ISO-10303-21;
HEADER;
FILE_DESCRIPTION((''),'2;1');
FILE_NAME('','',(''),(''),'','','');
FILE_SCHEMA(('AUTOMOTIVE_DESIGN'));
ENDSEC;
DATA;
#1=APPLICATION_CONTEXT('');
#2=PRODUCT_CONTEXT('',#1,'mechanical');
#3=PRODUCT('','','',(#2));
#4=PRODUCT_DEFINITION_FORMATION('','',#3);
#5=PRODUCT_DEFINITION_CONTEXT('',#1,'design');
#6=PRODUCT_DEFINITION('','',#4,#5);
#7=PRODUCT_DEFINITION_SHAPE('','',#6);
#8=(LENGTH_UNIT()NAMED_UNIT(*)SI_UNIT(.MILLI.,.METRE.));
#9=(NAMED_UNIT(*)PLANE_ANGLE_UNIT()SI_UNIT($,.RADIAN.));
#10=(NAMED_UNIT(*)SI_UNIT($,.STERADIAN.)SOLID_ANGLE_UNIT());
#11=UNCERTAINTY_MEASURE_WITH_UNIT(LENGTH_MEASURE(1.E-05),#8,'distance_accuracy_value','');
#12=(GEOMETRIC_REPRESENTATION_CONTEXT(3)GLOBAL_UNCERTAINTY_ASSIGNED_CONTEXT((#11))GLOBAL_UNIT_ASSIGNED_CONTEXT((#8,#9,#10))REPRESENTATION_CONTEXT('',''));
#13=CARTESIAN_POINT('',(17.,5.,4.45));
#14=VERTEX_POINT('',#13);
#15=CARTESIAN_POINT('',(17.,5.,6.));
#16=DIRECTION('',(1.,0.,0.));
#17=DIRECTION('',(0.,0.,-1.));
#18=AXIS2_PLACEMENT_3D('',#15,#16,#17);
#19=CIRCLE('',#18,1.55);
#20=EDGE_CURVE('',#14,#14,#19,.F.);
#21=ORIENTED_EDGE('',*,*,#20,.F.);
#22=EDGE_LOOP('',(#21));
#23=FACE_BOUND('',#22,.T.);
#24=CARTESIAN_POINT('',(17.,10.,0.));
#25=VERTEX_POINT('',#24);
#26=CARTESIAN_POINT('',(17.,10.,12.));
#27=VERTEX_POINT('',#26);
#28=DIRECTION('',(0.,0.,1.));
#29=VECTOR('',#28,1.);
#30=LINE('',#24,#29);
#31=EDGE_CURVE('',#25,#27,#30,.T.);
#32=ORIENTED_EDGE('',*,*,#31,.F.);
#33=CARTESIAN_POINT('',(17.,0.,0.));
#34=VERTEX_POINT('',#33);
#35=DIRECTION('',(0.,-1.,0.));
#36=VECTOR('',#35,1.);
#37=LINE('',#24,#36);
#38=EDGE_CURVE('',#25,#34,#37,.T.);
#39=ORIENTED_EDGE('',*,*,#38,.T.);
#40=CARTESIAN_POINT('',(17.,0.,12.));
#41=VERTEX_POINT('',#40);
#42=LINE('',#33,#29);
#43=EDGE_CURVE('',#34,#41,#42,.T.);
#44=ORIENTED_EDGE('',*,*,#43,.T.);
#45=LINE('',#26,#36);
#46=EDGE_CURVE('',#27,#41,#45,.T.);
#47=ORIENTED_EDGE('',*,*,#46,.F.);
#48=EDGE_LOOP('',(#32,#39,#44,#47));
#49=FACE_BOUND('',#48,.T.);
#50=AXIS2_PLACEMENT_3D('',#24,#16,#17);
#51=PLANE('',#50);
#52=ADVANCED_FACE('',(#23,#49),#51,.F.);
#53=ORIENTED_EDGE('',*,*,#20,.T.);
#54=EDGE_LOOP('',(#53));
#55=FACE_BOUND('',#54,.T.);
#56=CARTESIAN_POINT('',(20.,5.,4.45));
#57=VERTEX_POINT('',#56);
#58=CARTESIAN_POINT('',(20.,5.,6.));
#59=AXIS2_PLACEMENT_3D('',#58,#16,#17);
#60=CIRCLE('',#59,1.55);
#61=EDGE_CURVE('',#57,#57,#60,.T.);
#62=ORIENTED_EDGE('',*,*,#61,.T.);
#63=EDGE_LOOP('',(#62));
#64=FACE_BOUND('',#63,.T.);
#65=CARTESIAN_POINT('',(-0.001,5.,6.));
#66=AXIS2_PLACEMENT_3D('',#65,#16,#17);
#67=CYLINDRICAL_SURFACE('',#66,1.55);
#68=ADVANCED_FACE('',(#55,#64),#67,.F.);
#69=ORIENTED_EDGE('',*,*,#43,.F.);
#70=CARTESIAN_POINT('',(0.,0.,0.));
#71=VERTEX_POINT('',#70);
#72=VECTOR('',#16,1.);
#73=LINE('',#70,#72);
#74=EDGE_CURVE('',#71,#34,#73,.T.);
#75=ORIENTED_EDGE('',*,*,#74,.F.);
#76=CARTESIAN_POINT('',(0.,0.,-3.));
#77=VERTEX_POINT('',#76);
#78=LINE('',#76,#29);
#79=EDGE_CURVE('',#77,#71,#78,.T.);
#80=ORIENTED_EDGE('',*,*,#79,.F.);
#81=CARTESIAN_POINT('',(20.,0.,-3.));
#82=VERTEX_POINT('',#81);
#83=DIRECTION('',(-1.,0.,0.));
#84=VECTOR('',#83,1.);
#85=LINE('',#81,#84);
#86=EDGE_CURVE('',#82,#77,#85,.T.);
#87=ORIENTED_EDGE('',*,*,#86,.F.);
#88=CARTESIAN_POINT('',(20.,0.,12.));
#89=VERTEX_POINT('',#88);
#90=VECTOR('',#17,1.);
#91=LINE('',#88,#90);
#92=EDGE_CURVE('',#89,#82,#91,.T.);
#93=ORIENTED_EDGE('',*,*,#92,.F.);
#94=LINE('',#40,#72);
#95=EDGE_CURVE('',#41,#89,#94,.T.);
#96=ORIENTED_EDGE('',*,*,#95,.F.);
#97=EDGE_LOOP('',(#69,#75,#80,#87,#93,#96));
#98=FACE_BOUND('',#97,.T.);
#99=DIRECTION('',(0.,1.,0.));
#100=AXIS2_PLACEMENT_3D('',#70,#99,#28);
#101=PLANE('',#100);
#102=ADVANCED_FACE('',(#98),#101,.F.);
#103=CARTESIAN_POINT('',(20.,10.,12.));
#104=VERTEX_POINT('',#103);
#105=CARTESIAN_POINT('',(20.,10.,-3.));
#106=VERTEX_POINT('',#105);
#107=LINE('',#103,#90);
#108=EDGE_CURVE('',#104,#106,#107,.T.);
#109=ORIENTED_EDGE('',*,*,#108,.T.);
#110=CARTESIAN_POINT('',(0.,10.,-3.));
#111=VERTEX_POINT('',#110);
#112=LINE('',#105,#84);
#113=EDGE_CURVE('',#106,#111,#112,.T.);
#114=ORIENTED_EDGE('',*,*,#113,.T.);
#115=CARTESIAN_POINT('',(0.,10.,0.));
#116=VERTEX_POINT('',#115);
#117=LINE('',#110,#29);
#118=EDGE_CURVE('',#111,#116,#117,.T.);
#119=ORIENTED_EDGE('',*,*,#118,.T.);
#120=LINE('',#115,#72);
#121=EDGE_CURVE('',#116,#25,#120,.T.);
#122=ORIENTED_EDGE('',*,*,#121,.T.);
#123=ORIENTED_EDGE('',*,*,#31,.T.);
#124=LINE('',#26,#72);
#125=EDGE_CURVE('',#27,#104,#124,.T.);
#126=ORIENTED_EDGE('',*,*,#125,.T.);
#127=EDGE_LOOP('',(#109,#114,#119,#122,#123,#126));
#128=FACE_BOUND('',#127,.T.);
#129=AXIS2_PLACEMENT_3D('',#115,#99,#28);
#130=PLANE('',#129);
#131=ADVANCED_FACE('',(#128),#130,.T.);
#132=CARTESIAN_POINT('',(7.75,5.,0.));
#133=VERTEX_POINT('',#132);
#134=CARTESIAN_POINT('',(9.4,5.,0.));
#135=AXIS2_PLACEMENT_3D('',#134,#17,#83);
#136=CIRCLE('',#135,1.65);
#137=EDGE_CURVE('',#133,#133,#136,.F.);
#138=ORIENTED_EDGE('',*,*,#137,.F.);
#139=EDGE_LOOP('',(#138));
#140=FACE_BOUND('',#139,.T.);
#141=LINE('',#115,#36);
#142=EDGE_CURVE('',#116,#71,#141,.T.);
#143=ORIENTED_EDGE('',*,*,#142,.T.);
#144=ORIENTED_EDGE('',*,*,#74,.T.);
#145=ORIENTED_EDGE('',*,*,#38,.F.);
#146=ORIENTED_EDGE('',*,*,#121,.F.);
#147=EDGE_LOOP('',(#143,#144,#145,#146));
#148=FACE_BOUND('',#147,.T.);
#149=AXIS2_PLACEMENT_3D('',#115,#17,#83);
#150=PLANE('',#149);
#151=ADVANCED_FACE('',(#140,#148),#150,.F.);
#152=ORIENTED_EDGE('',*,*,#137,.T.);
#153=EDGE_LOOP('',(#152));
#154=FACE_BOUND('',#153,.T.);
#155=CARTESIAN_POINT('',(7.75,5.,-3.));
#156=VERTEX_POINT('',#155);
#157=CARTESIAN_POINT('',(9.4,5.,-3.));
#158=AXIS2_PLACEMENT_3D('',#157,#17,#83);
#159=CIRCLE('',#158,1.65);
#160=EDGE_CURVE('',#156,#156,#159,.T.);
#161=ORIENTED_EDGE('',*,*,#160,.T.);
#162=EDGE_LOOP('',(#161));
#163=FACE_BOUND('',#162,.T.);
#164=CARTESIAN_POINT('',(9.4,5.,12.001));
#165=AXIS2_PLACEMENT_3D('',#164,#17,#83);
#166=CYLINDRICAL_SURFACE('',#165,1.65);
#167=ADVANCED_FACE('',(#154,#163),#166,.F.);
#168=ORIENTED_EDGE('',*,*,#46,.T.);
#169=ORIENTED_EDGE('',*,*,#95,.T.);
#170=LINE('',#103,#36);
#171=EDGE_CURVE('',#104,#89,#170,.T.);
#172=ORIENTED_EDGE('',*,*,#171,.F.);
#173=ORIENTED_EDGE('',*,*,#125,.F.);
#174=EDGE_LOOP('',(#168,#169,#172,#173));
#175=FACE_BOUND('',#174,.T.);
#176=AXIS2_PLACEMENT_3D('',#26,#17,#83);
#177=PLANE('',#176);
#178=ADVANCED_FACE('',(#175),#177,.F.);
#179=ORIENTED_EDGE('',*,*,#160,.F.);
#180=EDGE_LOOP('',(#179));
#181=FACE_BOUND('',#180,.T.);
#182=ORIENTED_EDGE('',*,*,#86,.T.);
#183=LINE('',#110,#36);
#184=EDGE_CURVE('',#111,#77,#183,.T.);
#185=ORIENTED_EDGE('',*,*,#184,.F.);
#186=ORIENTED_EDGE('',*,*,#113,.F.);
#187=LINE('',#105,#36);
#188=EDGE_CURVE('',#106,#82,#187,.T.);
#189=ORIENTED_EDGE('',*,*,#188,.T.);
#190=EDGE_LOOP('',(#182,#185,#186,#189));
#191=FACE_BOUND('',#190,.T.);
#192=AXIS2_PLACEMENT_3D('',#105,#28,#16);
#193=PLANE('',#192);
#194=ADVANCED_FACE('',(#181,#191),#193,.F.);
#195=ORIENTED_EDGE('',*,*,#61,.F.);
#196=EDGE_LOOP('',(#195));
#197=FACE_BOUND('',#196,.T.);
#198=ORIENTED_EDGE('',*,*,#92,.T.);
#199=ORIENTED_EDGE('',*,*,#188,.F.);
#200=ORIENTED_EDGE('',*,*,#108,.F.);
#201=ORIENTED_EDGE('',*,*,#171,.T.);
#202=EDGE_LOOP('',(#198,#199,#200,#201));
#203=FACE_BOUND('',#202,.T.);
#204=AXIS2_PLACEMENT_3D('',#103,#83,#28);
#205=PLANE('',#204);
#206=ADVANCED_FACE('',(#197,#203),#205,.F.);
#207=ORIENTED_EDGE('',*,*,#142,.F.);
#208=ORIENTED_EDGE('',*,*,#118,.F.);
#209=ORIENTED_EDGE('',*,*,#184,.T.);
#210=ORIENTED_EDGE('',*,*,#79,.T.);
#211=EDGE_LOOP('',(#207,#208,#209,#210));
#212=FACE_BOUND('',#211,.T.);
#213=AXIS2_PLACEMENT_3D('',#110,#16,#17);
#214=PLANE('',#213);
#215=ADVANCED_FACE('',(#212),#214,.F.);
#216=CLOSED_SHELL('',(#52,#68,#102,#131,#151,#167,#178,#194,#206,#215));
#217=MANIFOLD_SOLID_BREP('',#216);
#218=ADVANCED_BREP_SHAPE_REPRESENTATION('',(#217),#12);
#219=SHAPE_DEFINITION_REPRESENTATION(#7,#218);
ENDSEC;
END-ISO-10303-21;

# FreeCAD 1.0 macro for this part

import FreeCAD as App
import Part
import Sketcher

V = App.Vector

doc = App.newDocument("Part")
params = doc.addObject("Spreadsheet::Sheet", "Params")
for row, (alias, value) in enumerate([
    ("sketch1_width", "17 mm"),
    ("sketch1_width2", "3 mm"),
    ("sketch1_height", "12 mm"),
    ("pad1_length", "10 mm"),
    ("sketch2_diameter", "3.1 mm"),
    ("sketch3_diameter", "3.3 mm"),
], start=1):
    params.set(f"A{row}", alias)
    params.set(f"B{row}", "=" + value)
    params.setAlias(f"B{row}", alias)

body = doc.addObject("PartDesign::Body", "Body")

# Sketch on XZ plane
sketch1 = body.newObject("Sketcher::SketchObject", "Sketch")
sketch1.AttachmentSupport = (doc.getObject("XZ_Plane"), [""])
sketch1.MapMode = "FlatFace"
sketch1.addGeometry([
    Part.LineSegment(V(0, 0, 0), V(17, 0, 0)),  # 0
    Part.LineSegment(V(17, 0, 0), V(17, 12, 0)),  # 1
    Part.LineSegment(V(17, 12, 0), V(20, 12, 0)),  # 2
    Part.LineSegment(V(20, 12, 0), V(20, -3, 0)),  # 3
    Part.LineSegment(V(20, -3, 0), V(0, -3, 0)),  # 4
    Part.LineSegment(V(0, -3, 0), V(0, 0, 0)),  # 5
], False)
sketch1.addConstraint([
    Sketcher.Constraint("Coincident", 0, 2, 1, 1),
    Sketcher.Constraint("Coincident", 1, 2, 2, 1),
    Sketcher.Constraint("Coincident", 2, 2, 3, 1),
    Sketcher.Constraint("Coincident", 3, 2, 4, 1),
    Sketcher.Constraint("Coincident", 4, 2, 5, 1),
    Sketcher.Constraint("Coincident", 5, 2, 0, 1),
    Sketcher.Constraint("Horizontal", 0),
    Sketcher.Constraint("Vertical", 1),
    Sketcher.Constraint("Horizontal", 2),
    Sketcher.Constraint("Vertical", 3),
    Sketcher.Constraint("Horizontal", 4),
    Sketcher.Constraint("Vertical", 5),
    Sketcher.Constraint("Coincident", 5, 2, -1, 1),
    Sketcher.Constraint("Equal", 2, 5),
    Sketcher.Constraint("DistanceX", 0, 1, 0, 2, 17.0),
    Sketcher.Constraint("DistanceX", 2, 1, 2, 2, 3.0),
    Sketcher.Constraint("DistanceY", 1, 1, 1, 2, 12.0),
])
sketch1.setExpression("Constraints[14]", "Params.sketch1_width")
sketch1.setExpression("Constraints[15]", "Params.sketch1_width2")
sketch1.setExpression("Constraints[16]", "Params.sketch1_height")
pad1 = body.newObject("PartDesign::Pad", "Pad")
pad1.Profile = sketch1
pad1.setExpression("Length", "Params.pad1_length")
pad1.Reversed = True

# Sketch on YZ plane
sketch2 = body.newObject("Sketcher::SketchObject", "Sketch001")
sketch2.AttachmentSupport = (doc.getObject("YZ_Plane"), [""])
sketch2.MapMode = "FlatFace"
sketch2.AttachmentOffset = App.Placement(V(0, 0, 20), App.Rotation())
sketch2.addGeometry(Part.Circle(V(5, 6, 0), V(0, 0, 1), 1.6), False)
sketch2.addConstraint([
    Sketcher.Constraint("Diameter", 0, 3.1),
    Sketcher.Constraint("DistanceX", -1, 1, 0, 3, 5.0),
    Sketcher.Constraint("DistanceY", -1, 1, 0, 3, 6.0),
])
sketch2.setExpression("Constraints[0]", "Params.sketch2_diameter")
pocket1 = body.newObject("PartDesign::Pocket", "Pocket")
pocket1.Profile = sketch2
pocket1.Type = "UpToFirst"

# Sketch on XY plane
sketch3 = body.newObject("Sketcher::SketchObject", "Sketch002")
sketch3.AttachmentSupport = (doc.getObject("XY_Plane"), [""])
sketch3.MapMode = "FlatFace"
sketch3.AttachmentOffset = App.Placement(V(0, 0, -3), App.Rotation())
sketch3.addGeometry(Part.Circle(V(9.4, 5, 0), V(0, 0, 1), 1.6), False)
sketch3.addConstraint([
    Sketcher.Constraint("Diameter", 0, 3.3),
    Sketcher.Constraint("DistanceY", -1, 1, 0, 3, 5.0),
    Sketcher.Constraint("DistanceX", -1, 1, 0, 3, 9.4),
])
sketch3.setExpression("Constraints[0]", "Params.sketch3_diameter")
pocket2 = body.newObject("PartDesign::Pocket", "Pocket001")
pocket2.Profile = sketch3
pocket2.Type = "UpToFirst"
pocket2.Reversed = True

doc.recompute()
